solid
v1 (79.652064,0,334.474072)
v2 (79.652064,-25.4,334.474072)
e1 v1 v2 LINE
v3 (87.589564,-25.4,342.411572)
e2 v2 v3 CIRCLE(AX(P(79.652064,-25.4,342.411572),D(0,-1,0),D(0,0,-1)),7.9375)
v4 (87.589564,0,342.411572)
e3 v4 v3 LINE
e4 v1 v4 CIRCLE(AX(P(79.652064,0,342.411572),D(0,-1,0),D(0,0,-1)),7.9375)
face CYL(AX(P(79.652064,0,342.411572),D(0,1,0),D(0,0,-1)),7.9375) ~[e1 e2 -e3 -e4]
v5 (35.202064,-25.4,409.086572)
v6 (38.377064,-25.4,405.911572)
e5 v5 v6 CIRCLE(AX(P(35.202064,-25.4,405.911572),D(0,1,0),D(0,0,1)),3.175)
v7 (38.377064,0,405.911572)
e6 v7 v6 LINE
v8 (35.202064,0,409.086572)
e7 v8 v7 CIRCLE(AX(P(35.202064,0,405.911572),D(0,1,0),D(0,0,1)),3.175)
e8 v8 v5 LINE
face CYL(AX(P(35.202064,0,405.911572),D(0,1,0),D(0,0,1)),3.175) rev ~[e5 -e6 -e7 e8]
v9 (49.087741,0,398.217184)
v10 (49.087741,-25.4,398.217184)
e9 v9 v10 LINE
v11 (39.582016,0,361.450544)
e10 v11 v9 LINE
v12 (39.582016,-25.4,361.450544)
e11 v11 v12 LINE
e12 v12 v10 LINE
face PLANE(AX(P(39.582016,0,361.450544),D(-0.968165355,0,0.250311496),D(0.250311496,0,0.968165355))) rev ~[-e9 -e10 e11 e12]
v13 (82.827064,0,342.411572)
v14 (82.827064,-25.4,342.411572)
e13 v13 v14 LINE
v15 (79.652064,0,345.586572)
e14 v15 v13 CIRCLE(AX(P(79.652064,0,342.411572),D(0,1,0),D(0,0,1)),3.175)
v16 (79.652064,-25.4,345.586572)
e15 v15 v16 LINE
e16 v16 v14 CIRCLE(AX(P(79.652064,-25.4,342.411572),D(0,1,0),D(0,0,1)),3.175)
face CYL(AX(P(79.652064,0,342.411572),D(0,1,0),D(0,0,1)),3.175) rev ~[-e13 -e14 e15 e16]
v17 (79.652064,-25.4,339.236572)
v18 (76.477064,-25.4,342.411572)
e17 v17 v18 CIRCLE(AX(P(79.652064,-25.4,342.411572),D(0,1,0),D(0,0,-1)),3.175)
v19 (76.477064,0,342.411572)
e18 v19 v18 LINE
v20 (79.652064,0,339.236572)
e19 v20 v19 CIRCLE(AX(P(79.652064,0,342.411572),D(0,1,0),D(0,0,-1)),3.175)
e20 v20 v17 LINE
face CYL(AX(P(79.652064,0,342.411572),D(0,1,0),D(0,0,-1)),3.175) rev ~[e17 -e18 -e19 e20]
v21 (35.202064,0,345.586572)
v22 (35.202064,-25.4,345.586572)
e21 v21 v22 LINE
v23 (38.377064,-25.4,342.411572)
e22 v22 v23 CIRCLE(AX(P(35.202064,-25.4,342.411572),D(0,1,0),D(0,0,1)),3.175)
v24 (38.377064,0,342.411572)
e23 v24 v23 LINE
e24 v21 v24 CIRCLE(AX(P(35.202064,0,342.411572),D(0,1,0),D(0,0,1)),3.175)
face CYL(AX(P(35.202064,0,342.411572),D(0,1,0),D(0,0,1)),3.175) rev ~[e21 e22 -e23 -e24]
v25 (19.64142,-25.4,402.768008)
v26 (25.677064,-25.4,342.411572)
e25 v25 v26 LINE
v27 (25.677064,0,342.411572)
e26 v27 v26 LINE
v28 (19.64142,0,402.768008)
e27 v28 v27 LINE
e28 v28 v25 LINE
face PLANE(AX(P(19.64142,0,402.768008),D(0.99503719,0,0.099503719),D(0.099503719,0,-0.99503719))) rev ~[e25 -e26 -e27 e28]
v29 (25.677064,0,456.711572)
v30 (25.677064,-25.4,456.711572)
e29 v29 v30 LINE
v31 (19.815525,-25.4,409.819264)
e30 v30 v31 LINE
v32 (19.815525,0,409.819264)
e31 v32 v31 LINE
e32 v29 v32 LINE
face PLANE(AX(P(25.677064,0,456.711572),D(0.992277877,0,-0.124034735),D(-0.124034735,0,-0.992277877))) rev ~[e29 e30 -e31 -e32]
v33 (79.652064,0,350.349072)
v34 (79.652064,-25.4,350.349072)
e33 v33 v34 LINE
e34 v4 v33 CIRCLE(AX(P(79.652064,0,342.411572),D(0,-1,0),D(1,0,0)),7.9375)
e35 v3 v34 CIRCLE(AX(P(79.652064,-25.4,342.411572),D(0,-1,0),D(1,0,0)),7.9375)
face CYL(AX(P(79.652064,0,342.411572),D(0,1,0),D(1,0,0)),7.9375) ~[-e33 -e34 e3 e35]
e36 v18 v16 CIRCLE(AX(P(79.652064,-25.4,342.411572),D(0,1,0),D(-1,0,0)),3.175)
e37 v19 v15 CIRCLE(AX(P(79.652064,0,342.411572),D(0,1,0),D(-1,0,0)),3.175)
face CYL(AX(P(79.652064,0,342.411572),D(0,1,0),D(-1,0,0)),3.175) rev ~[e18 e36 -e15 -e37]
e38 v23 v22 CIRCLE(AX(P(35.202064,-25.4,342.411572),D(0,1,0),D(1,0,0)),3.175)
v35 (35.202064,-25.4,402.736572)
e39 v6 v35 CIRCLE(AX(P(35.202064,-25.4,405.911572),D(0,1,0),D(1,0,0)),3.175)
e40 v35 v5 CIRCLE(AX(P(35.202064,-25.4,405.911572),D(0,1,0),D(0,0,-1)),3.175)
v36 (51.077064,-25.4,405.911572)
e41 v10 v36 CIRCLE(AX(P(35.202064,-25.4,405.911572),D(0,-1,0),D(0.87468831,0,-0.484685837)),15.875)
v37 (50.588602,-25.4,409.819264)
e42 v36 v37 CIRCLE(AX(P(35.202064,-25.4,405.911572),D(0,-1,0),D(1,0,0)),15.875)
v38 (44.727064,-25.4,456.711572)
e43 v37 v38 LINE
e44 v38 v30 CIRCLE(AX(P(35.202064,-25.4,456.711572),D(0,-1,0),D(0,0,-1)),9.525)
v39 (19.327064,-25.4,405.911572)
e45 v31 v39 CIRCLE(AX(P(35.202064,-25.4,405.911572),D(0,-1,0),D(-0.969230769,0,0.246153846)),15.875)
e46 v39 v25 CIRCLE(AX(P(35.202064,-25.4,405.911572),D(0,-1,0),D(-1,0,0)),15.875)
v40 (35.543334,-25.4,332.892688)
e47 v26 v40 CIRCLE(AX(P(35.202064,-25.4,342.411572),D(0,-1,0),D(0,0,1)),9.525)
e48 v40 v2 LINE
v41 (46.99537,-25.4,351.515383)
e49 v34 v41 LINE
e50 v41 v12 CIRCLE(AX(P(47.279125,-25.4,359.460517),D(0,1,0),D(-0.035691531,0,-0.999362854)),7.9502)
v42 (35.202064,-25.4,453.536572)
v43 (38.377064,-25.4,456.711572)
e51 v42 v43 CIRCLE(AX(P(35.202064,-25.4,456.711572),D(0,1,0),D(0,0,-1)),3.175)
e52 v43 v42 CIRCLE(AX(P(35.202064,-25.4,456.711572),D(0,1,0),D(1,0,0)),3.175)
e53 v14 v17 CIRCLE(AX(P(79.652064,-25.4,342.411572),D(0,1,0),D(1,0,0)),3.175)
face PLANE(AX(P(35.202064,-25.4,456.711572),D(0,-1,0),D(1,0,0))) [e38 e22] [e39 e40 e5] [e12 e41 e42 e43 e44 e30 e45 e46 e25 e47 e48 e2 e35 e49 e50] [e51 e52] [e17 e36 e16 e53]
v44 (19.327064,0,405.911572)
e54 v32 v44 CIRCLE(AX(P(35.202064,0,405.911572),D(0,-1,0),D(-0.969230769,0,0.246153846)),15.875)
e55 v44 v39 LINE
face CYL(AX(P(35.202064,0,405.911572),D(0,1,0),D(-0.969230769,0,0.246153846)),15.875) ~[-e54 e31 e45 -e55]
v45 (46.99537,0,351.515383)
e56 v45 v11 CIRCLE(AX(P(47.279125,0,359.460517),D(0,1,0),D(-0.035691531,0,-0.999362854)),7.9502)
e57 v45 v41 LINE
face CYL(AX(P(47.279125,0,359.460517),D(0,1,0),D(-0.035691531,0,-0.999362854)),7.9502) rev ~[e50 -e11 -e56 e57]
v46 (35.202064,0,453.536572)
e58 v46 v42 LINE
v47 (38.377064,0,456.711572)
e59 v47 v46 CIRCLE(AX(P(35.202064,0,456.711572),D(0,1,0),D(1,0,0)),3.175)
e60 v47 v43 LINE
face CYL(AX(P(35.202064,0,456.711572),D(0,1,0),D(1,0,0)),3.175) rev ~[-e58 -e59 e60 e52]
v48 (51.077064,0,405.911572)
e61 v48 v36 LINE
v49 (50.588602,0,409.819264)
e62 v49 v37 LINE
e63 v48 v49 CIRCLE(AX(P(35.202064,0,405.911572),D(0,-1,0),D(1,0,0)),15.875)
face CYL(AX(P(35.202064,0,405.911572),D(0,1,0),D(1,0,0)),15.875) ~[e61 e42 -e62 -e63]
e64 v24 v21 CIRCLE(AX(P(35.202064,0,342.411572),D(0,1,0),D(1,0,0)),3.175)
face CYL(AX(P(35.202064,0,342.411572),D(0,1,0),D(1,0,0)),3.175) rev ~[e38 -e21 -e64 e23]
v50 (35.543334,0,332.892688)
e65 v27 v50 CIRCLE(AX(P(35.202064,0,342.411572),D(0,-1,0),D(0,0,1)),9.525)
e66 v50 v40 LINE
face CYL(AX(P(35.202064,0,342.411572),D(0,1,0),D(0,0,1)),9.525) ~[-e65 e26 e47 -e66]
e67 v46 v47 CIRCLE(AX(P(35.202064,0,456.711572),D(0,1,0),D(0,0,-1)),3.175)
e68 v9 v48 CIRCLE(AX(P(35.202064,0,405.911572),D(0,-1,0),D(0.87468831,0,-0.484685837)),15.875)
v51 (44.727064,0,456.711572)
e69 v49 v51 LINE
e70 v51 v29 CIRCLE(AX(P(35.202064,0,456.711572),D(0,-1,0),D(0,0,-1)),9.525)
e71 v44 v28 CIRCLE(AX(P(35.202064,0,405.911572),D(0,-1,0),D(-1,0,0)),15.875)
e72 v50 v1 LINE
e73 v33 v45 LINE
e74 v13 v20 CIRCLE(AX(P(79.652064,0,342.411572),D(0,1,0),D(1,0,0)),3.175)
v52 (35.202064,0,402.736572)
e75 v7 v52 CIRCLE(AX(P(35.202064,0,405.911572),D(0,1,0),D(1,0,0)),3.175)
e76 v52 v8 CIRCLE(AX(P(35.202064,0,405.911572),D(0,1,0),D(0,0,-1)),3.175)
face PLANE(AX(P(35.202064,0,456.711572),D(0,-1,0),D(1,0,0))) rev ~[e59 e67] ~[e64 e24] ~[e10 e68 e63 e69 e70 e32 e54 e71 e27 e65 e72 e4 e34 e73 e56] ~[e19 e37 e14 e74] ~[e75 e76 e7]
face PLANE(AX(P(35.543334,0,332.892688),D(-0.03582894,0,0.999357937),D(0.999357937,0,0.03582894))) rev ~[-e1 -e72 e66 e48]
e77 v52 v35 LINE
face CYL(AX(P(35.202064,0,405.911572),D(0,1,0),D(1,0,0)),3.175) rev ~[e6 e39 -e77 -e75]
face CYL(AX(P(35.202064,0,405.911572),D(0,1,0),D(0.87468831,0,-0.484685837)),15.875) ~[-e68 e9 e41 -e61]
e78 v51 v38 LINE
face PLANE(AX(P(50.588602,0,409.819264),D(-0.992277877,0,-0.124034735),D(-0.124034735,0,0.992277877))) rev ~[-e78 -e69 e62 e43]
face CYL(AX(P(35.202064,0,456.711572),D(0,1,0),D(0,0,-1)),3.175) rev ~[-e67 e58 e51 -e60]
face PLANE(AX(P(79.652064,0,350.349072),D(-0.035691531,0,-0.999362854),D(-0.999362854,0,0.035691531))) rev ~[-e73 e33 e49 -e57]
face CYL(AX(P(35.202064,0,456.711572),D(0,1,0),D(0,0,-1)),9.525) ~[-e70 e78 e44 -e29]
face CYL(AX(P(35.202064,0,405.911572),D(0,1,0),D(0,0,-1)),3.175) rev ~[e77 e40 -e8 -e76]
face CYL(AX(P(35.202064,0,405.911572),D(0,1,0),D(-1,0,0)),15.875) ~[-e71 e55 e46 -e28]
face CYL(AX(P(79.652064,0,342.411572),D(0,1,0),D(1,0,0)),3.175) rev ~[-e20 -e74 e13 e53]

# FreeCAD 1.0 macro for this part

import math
import FreeCAD as App
import Part
import Sketcher

V = App.Vector
Q = App.Units.Quantity

doc = App.newDocument("Part")
params = doc.addObject("Spreadsheet::Sheet", "Params")
for row, (alias, value) in enumerate([
    ("sketch1_radius", "0.375 in"),
    ("sketch1_radius2", "0.3125 in"),
    ("sketch1_radius3", "0.313 in"),
    ("sketch1_radius4", "0.625 in"),
    ("sketch1_radius5", "0.125 in"),
    ("pad1_length", "1 in"),
], start=1):
    params.set(f"A{row}", alias)
    params.set(f"B{row}", "=" + value)
    params.setAlias(f"B{row}", alias)

body = doc.addObject("PartDesign::Body", "Body")

sketch1 = doc.addObject("Sketcher::SketchObject", "Sketch")
body.addObject(sketch1)
sketch1.AttachmentSupport = (doc.XZ_Plane, [""])
sketch1.MapMode = "FlatFace"
sketch1.addGeometry([
    Part.ArcOfCircle(Part.Circle(V(35.2, 342.4, 0), V(0, 0, 1), 9.5), math.radians(180), math.radians(272)),
    Part.LineSegment(V(35.5, 332.9, 0), V(79.7, 334.5, 0)),
    Part.ArcOfCircle(Part.Circle(V(79.7, 342.4, 0), V(0, 0, 1), 7.9), math.radians(-90), math.radians(0)),
    Part.ArcOfCircle(Part.Circle(V(79.7, 342.4, 0), V(0, 0, 1), 7.9), math.radians(0), math.radians(90)),
    Part.LineSegment(V(79.7, 350.3, 0), V(47, 351.5, 0)),
    Part.ArcOfCircle(Part.Circle(V(47.3, 359.5, 0), V(0, 0, 1), 8), math.radians(166), math.radians(268)),
    Part.LineSegment(V(39.6, 361.5, 0), V(49.1, 398.2, 0)),
    Part.ArcOfCircle(Part.Circle(V(35.2, 405.9, 0), V(0, 0, 1), 15.9), math.radians(-29), math.radians(0)),
    Part.ArcOfCircle(Part.Circle(V(35.2, 405.9, 0), V(0, 0, 1), 15.9), math.radians(0), math.radians(14.25)),
    Part.LineSegment(V(50.6, 409.8, 0), V(44.7, 456.7, 0)),
    Part.ArcOfCircle(Part.Circle(V(35.2, 456.7, 0), V(0, 0, 1), 9.5), math.radians(0), math.radians(180)),
    Part.LineSegment(V(25.7, 456.7, 0), V(19.8, 409.8, 0)),
    Part.ArcOfCircle(Part.Circle(V(35.2, 405.9, 0), V(0, 0, 1), 15.9), math.radians(165.75), math.radians(180)),
    Part.ArcOfCircle(Part.Circle(V(35.2, 405.9, 0), V(0, 0, 1), 15.9), math.radians(180), math.radians(191.42)),
    Part.LineSegment(V(19.6, 402.8, 0), V(25.7, 342.4, 0)),
    Part.ArcOfCircle(Part.Circle(V(79.7, 342.4, 0), V(0, 0, 1), 3.2), math.radians(180), math.radians(270)),
    Part.ArcOfCircle(Part.Circle(V(79.7, 342.4, 0), V(0, 0, 1), 3.2), math.radians(90), math.radians(180)),
    Part.ArcOfCircle(Part.Circle(V(79.7, 342.4, 0), V(0, 0, 1), 3.2), math.radians(0), math.radians(90)),
    Part.ArcOfCircle(Part.Circle(V(79.7, 342.4, 0), V(0, 0, 1), 3.2), math.radians(-90), math.radians(0)),
    Part.ArcOfCircle(Part.Circle(V(35.2, 342.4, 0), V(0, 0, 1), 3.2), math.radians(90), math.radians(360)),
    Part.ArcOfCircle(Part.Circle(V(35.2, 342.4, 0), V(0, 0, 1), 3.2), math.radians(0), math.radians(90)),
    Part.ArcOfCircle(Part.Circle(V(35.2, 405.9, 0), V(0, 0, 1), 3.2), math.radians(0), math.radians(90)),
    Part.ArcOfCircle(Part.Circle(V(35.2, 405.9, 0), V(0, 0, 1), 3.2), math.radians(-90), math.radians(0)),
    Part.ArcOfCircle(Part.Circle(V(35.2, 405.9, 0), V(0, 0, 1), 3.2), math.radians(90), math.radians(270)),
    Part.ArcOfCircle(Part.Circle(V(35.2, 456.7, 0), V(0, 0, 1), 3.2), math.radians(0), math.radians(270)),
    Part.ArcOfCircle(Part.Circle(V(35.2, 456.7, 0), V(0, 0, 1), 3.2), math.radians(-90), math.radians(0)),
], False)
sketch1.addConstraint([
    Sketcher.Constraint("Tangent", 0, 2, 1, 1),
    Sketcher.Constraint("Coincident", 1, 2, 2, 1),
    Sketcher.Constraint("Tangent", 2, 2, 3, 1),
    Sketcher.Constraint("Coincident", 3, 2, 4, 1),
    Sketcher.Constraint("Tangent", 4, 2, 5, 2),
    Sketcher.Constraint("Tangent", 5, 1, 6, 1),
    Sketcher.Constraint("Coincident", 6, 2, 7, 1),
    Sketcher.Constraint("Tangent", 7, 2, 8, 1),
    Sketcher.Constraint("Coincident", 8, 2, 9, 1),
    Sketcher.Constraint("Coincident", 9, 2, 10, 1),
    Sketcher.Constraint("Coincident", 10, 2, 11, 1),
    Sketcher.Constraint("Coincident", 11, 2, 12, 1),
    Sketcher.Constraint("Tangent", 12, 2, 13, 1),
    Sketcher.Constraint("Coincident", 13, 2, 14, 1),
    Sketcher.Constraint("Coincident", 14, 2, 0, 1),
    Sketcher.Constraint("Tangent", 15, 1, 16, 2),
    Sketcher.Constraint("Tangent", 16, 1, 17, 2),
    Sketcher.Constraint("Tangent", 17, 1, 18, 2),
    Sketcher.Constraint("Tangent", 18, 1, 15, 2),
    Sketcher.Constraint("Tangent", 19, 1, 20, 2),
    Sketcher.Constraint("Coincident", 20, 1, 19, 2),
    Sketcher.Constraint("Tangent", 21, 1, 22, 2),
    Sketcher.Constraint("Tangent", 22, 1, 23, 2),
    Sketcher.Constraint("Tangent", 23, 1, 21, 2),
    Sketcher.Constraint("Tangent", 24, 1, 25, 2),
    Sketcher.Constraint("Coincident", 25, 1, 24, 2),
    Sketcher.Constraint("Coincident", 12, 3, 7, 3),
    Sketcher.Constraint("Coincident", 15, 3, 2, 3),
    Sketcher.Constraint("Coincident", 19, 3, 0, 3),
    Sketcher.Constraint("Coincident", 21, 3, 7, 3),
    Sketcher.Constraint("Coincident", 24, 3, 10, 3),
    Sketcher.Constraint("Equal", 2, 3),
    Sketcher.Constraint("Equal", 7, 8),
    Sketcher.Constraint("Equal", 0, 10),
    Sketcher.Constraint("Equal", 8, 12),
    Sketcher.Constraint("Equal", 12, 13),
    Sketcher.Constraint("Equal", 15, 16),
    Sketcher.Constraint("Equal", 18, 19),
    Sketcher.Constraint("Equal", 20, 21),
    Sketcher.Constraint("Equal", 23, 24),
    Sketcher.Constraint("Horizontal", 0, 3, 2, 3),
    Sketcher.Constraint("Horizontal", 20, 3, 2, 2),
    Sketcher.Constraint("Horizontal", 23, 3, 7, 2),
    Sketcher.Constraint("Horizontal", 25, 3, 9, 2),
    Sketcher.Constraint("Horizontal", 9, 2, 10, 2),
    Sketcher.Constraint("Horizontal", 8, 2, 11, 2),
    Sketcher.Constraint("Horizontal", 7, 2, 12, 2),
    Sketcher.Constraint("Horizontal", 2, 2, 14, 2),
    Sketcher.Constraint("Horizontal", 14, 2, 15, 1),
    Sketcher.Constraint("Horizontal", 15, 1, 17, 1),
    Sketcher.Constraint("Horizontal", 17, 1, 20, 1),
    Sketcher.Constraint("Horizontal", 12, 2, 21, 1),
    Sketcher.Constraint("Horizontal", 10, 2, 24, 1),
    Sketcher.Constraint("Vertical", 0, 3, 7, 3),
    Sketcher.Constraint("Vertical", 8, 3, 10, 3),
    Sketcher.Constraint("Vertical", 18, 3, 1, 2),
    Sketcher.Constraint("Vertical", 1, 2, 3, 2),
    Sketcher.Constraint("Vertical", 3, 2, 16, 1),
    Sketcher.Constraint("Vertical", 16, 1, 18, 1),
    Sketcher.Constraint("Vertical", 25, 3, 19, 1),
    Sketcher.Constraint("Vertical", 19, 1, 22, 1),
    Sketcher.Constraint("Vertical", 22, 1, 23, 1),
    Sketcher.Constraint("Vertical", 23, 1, 25, 1),
    Sketcher.Constraint("Radius", 0, Q("0.375 in")),
    Sketcher.Constraint("Radius", 2, Q("0.3125 in")),
    Sketcher.Constraint("Radius", 5, Q("0.313 in")),
    Sketcher.Constraint("Radius", 7, Q("0.625 in")),
    Sketcher.Constraint("Radius", 15, Q("0.125 in")),
    Sketcher.Constraint("DistanceY", 7, 3, 10, 3, Q("2 in")),
    Sketcher.Constraint("DistanceY", 0, 3, 7, 3, Q("2.5 in")),
    Sketcher.Constraint("DistanceX", 0, 3, 2, 3, Q("1.75 in")),
    Sketcher.Constraint("Distance", 6, Q("37.97558 mm")),
    Sketcher.Constraint("DistanceX", -1, 1, 4, 2, Q("46.99537 mm")),
    Sketcher.Constraint("DistanceX", -1, 1, 6, 2, Q("49.087741 mm")),
    Sketcher.Constraint("DistanceX", -1, 1, 13, 2, Q("19.64142 mm")),
    Sketcher.Constraint("DistanceX", 0, 3, 5, 3, Q("12.077061 mm")),
    Sketcher.Constraint("DistanceX", 8, 2, 7, 2, Q("0.488462 mm")),
    Sketcher.Constraint("DistanceY", -1, 1, 0, 3, Q("342.411572 mm")),
])
sketch1.setExpression("Constraints[63]", "Params.sketch1_radius")
sketch1.setExpression("Constraints[64]", "Params.sketch1_radius2")
sketch1.setExpression("Constraints[65]", "Params.sketch1_radius3")
sketch1.setExpression("Constraints[66]", "Params.sketch1_radius4")
sketch1.setExpression("Constraints[67]", "Params.sketch1_radius5")
pad1 = doc.addObject("PartDesign::Pad", "Pad")
body.addObject(pad1)
pad1.Profile = sketch1
pad1.setExpression("Length", "Params.pad1_length")

doc.recompute()
